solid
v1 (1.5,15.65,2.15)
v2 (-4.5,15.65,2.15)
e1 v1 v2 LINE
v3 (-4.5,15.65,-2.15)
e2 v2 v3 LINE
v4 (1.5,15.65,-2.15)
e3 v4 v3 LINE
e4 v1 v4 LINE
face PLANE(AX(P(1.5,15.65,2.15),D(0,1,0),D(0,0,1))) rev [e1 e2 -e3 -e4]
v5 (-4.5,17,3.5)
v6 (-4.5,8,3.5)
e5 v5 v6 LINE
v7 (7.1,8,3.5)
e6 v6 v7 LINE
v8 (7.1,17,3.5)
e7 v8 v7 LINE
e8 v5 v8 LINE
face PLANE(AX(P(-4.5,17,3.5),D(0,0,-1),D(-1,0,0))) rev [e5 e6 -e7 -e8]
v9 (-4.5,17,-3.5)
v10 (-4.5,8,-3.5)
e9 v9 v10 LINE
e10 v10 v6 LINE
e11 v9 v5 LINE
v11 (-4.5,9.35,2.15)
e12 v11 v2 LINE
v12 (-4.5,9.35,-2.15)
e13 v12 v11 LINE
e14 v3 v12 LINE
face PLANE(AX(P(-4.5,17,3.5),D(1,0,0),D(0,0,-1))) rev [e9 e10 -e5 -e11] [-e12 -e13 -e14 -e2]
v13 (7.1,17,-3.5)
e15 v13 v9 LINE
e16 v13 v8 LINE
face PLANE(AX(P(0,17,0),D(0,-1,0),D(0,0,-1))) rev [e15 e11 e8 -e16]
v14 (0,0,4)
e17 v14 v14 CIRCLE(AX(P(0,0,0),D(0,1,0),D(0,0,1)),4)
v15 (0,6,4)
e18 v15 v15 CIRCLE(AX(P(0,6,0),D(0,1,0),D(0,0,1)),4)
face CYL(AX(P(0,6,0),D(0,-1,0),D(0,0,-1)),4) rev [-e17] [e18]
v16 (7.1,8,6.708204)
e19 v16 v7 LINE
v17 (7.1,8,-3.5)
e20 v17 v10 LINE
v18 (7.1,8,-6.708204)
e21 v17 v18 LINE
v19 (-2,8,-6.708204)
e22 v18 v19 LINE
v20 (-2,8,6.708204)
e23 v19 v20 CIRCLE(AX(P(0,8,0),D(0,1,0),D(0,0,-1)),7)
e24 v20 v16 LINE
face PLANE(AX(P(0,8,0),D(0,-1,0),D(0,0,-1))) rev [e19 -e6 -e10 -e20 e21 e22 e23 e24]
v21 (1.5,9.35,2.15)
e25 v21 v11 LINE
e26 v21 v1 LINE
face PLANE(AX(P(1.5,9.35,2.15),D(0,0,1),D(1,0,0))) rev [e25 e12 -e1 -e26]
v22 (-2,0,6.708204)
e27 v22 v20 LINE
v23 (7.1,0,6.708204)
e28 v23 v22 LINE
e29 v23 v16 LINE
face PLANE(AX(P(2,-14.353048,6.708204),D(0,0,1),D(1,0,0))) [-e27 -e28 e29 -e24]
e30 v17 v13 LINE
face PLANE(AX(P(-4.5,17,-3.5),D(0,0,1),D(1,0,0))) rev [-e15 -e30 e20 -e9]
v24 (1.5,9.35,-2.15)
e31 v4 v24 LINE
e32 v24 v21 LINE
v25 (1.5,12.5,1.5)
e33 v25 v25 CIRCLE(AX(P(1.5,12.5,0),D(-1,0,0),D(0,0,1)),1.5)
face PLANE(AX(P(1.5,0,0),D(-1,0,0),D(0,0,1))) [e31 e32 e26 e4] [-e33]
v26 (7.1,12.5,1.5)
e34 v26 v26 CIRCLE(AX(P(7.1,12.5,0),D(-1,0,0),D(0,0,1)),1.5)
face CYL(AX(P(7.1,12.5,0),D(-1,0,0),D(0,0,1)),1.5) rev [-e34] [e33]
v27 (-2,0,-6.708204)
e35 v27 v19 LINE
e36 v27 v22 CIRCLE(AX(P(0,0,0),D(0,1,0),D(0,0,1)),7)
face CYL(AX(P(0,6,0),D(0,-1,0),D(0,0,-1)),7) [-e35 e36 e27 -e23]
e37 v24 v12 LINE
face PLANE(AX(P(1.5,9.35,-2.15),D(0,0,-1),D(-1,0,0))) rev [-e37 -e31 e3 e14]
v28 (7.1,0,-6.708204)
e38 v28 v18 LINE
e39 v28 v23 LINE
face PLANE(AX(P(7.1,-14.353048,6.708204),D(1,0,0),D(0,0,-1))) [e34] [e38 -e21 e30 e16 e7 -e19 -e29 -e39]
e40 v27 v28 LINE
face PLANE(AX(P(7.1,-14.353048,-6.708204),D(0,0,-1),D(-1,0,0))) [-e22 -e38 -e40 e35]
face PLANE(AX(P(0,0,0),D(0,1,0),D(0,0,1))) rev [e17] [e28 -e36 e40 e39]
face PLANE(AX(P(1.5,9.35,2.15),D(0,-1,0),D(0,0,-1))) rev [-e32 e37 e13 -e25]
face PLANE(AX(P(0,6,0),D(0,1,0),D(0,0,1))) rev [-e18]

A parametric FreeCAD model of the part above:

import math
import FreeCAD as App
import Part
import Sketcher

V = App.Vector

doc = App.newDocument("Part")
params = doc.addObject("Spreadsheet::Sheet", "Params")
for row, (alias, value) in enumerate([
    ("sketch1_diameter", "14 mm"),
    ("sketch1_diameter2", "8 mm"),
    ("pad1_length", "6 mm"),
    ("sketch2_diameter", "14 mm"),
    ("pad2_length", "10 mm"),
    ("sketch3_radius", "7 mm"),
    ("pocket1_length", "8 mm"),
    ("sketch4_width", "6.3 mm"),
    ("sketch4_height", "4.3 mm"),
    ("pocket2_length", "6 mm"),
    ("sketch5_radius", "7 mm"),
    ("sketch5_height", "8 mm"),
    ("pocket3_length", "8 mm"),
    ("sketch6_radius", "7 mm"),
    ("sketch6_width", "4 mm"),
    ("sketch6_height", "5 mm"),
    ("pad3_length", "8 mm"),
    ("sketch7_diameter", "14 mm"),
    ("pocket4_length", "8 mm"),
    ("sketch8_width", "9 mm"),
    ("sketch8_height", "7 mm"),
    ("pad4_length", "9 mm"),
    ("sketch9_width", "6.3 mm"),
    ("sketch9_height", "4.3 mm"),
    ("pocket5_length", "6 mm"),
    ("sketch10_radius", "7 mm"),
    ("sketch10_width", "5.1 mm"),
    ("pad5_length", "8 mm"),
    ("sketch11_width", "9 mm"),
    ("sketch11_height", "7 mm"),
    ("pad6_length", "2.6 mm"),
    ("sketch12_width", "4 mm"),
    ("sketch12_height", "5 mm"),
    ("sketch13_diameter", "3 mm"),
], start=1):
    params.set(f"A{row}", alias)
    params.set(f"B{row}", "=" + value)
    params.setAlias(f"B{row}", alias)

body = doc.addObject("PartDesign::Body", "Body")

sketch1 = doc.addObject("Sketcher::SketchObject", "Sketch")
body.addObject(sketch1)
sketch1.AttachmentSupport = (doc.XZ_Plane, [""])
sketch1.MapMode = "FlatFace"
sketch1.addGeometry(Part.Circle(V(0, 0, 0), V(0, 0, 1), 7), False)
sketch1.addGeometry(Part.Circle(V(0, 0, 0), V(0, 0, 1), 4), False)
sketch1.addConstraint(Sketcher.Constraint("Coincident", 0, 3, -1, 1))
sketch1.addConstraint(Sketcher.Constraint("Coincident", 1, 3, -1, 1))
sketch1.addConstraint(Sketcher.Constraint("Diameter", 0, 14.0))
sketch1.addConstraint(Sketcher.Constraint("Diameter", 1, 8.0))
sketch1.setExpression("Constraints[2]", "Params.sketch1_diameter")
sketch1.setExpression("Constraints[3]", "Params.sketch1_diameter2")
pad1 = doc.addObject("PartDesign::Pad", "Pad")
body.addObject(pad1)
pad1.Profile = sketch1
pad1.setExpression("Length", "Params.pad1_length")
pad1.Reversed = True

sketch2 = doc.addObject("Sketcher::SketchObject", "Sketch001")
body.addObject(sketch2)
sketch2.AttachmentSupport = (doc.XZ_Plane, [""])
sketch2.MapMode = "FlatFace"
sketch2.AttachmentOffset = App.Placement(V(0, 0, -6), App.Rotation())
sketch2.addGeometry(Part.Circle(V(0, 0, 0), V(0, 0, 1), 7), False)
sketch2.addConstraint(Sketcher.Constraint("Coincident", 0, 3, -1, 1))
sketch2.addConstraint(Sketcher.Constraint("Diameter", 0, 14.0))
sketch2.setExpression("Constraints[1]", "Params.sketch2_diameter")
pad2 = doc.addObject("PartDesign::Pad", "Pad001")
body.addObject(pad2)
pad2.Profile = sketch2
pad2.setExpression("Length", "Params.pad2_length")
pad2.Reversed = True

sketch3 = doc.addObject("Sketcher::SketchObject", "Sketch002")
body.addObject(sketch3)
sketch3.AttachmentSupport = (doc.XZ_Plane, [""])
sketch3.MapMode = "FlatFace"
sketch3.AttachmentOffset = App.Placement(V(0, 0, -16), App.Rotation())
sketch3.addGeometry(Part.LineSegment(V(0, 7, 0), V(0, -7, 0)), False)
sketch3.addGeometry(Part.ArcOfCircle(Part.Circle(V(0, 0, 0), V(0, 0, 1), 7), math.radians(90), math.radians(270)), False)
sketch3.addConstraint(Sketcher.Constraint("Coincident", 0, 1, 1, 1))
sketch3.addConstraint(Sketcher.Constraint("Coincident", 1, 2, 0, 2))
sketch3.addConstraint(Sketcher.Constraint("Vertical", 0))
sketch3.addConstraint(Sketcher.Constraint("Coincident", 1, 3, -1, 1))
sketch3.addConstraint(Sketcher.Constraint("PointOnObject", 0, 1, -2))
sketch3.addConstraint(Sketcher.Constraint("Radius", 1, 7.0))
sketch3.setExpression("Constraints[5]", "Params.sketch3_radius")
pocket1 = doc.addObject("PartDesign::Pocket", "Pocket")
body.addObject(pocket1)
pocket1.Profile = sketch3
pocket1.setExpression("Length", "Params.pocket1_length")
pocket1.Reversed = True

sketch4 = doc.addObject("Sketcher::SketchObject", "Sketch003")
body.addObject(sketch4)
sketch4.AttachmentSupport = (doc.YZ_Plane, [""])
sketch4.MapMode = "FlatFace"
sketch4.addGeometry(Part.LineSegment(V(15.3, -2.1, 0), V(9, -2.1, 0)), False)
sketch4.addGeometry(Part.LineSegment(V(9, -2.1, 0), V(9, 2.1, 0)), False)
sketch4.addGeometry(Part.LineSegment(V(9, 2.1, 0), V(15.3, 2.1, 0)), False)
sketch4.addGeometry(Part.LineSegment(V(15.3, 2.1, 0), V(15.3, -2.1, 0)), False)
sketch4.addConstraint(Sketcher.Constraint("Coincident", 0, 2, 1, 1))
sketch4.addConstraint(Sketcher.Constraint("Coincident", 1, 2, 2, 1))
sketch4.addConstraint(Sketcher.Constraint("Coincident", 2, 2, 3, 1))
sketch4.addConstraint(Sketcher.Constraint("Coincident", 3, 2, 0, 1))
sketch4.addConstraint(Sketcher.Constraint("Horizontal", 0))
sketch4.addConstraint(Sketcher.Constraint("Vertical", 1))
sketch4.addConstraint(Sketcher.Constraint("Horizontal", 2))
sketch4.addConstraint(Sketcher.Constraint("Vertical", 3))
sketch4.addConstraint(Sketcher.Constraint("DistanceX", 0, 2, 0, 1, 6.3))
sketch4.addConstraint(Sketcher.Constraint("DistanceY", 1, 1, 1, 2, 4.3))
sketch4.addConstraint(Sketcher.Constraint("DistanceX", -1, 1, 0, 2, 9.0))
sketch4.addConstraint(Sketcher.Constraint("DistanceY", 0, 2, -1, 1, 2.15))
sketch4.setExpression("Constraints[8]", "Params.sketch4_width")
sketch4.setExpression("Constraints[9]", "Params.sketch4_height")
pocket2 = doc.addObject("PartDesign::Pocket", "Pocket001")
body.addObject(pocket2)
pocket2.Profile = sketch4
pocket2.setExpression("Length", "Params.pocket2_length")
pocket2.Reversed = True

sketch5 = doc.addObject("Sketcher::SketchObject", "Sketch004")
body.addObject(sketch5)
sketch5.AttachmentSupport = (doc.XZ_Plane, [""])
sketch5.MapMode = "FlatFace"
sketch5.AttachmentOffset = App.Placement(V(0, 0, -16), App.Rotation())
sketch5.addGeometry(Part.LineSegment(V(-11, -11, 0), V(-11, 11, 0)), False)
sketch5.addGeometry(Part.LineSegment(V(-11, 11, 0), V(11, 11, 0)), False)
sketch5.addGeometry(Part.LineSegment(V(11, 11, 0), V(11, -11, 0)), False)
sketch5.addGeometry(Part.LineSegment(V(11, -11, 0), V(-11, -11, 0)), False)
sketch5.addGeometry(Part.LineSegment(V(0, 4, 0), V(0, -4, 0)), False)
sketch5.addGeometry(Part.LineSegment(V(0, -4, 0), V(6, -4, 0)), False)
sketch5.addGeometry(Part.ArcOfCircle(Part.Circle(V(0, 0, 0), V(0, 0, 1), 7), math.radians(-35), math.radians(35)), False)
sketch5.addGeometry(Part.LineSegment(V(6, 4, 0), V(0, 4, 0)), False)
sketch5.addConstraint(Sketcher.Constraint("Coincident", 0, 2, 1, 1))
sketch5.addConstraint(Sketcher.Constraint("Coincident", 1, 2, 2, 1))
sketch5.addConstraint(Sketcher.Constraint("Coincident", 2, 2, 3, 1))
sketch5.addConstraint(Sketcher.Constraint("Coincident", 3, 2, 0, 1))
sketch5.addConstraint(Sketcher.Constraint("Coincident", 4, 2, 5, 1))
sketch5.addConstraint(Sketcher.Constraint("Coincident", 5, 2, 6, 1))
sketch5.addConstraint(Sketcher.Constraint("Coincident", 6, 2, 7, 1))
sketch5.addConstraint(Sketcher.Constraint("Coincident", 7, 2, 4, 1))
sketch5.addConstraint(Sketcher.Constraint("Vertical", 0))
sketch5.addConstraint(Sketcher.Constraint("Horizontal", 1))
sketch5.addConstraint(Sketcher.Constraint("Vertical", 2))
sketch5.addConstraint(Sketcher.Constraint("Horizontal", 3))
sketch5.addConstraint(Sketcher.Constraint("Vertical", 4))
sketch5.addConstraint(Sketcher.Constraint("Horizontal", 5))
sketch5.addConstraint(Sketcher.Constraint("Horizontal", 7))
sketch5.addConstraint(Sketcher.Constraint("Coincident", 6, 3, -1, 1))
sketch5.addConstraint(Sketcher.Constraint("Symmetric", 0, 2, 2, 2, -1, 1))
sketch5.addConstraint(Sketcher.Constraint("Symmetric", 4, 2, 7, 2, -1, 1))
sketch5.addConstraint(Sketcher.Constraint("Equal", 3, 0))
sketch5.addConstraint(Sketcher.Constraint("Radius", 6, 7.0))
sketch5.addConstraint(Sketcher.Constraint("DistanceY", 4, 2, 4, 1, 8.0))
sketch5.addConstraint(Sketcher.Constraint("DistanceX", 1, 1, 1, 2, 21.092))
sketch5.setExpression("Constraints[19]", "Params.sketch5_radius")
sketch5.setExpression("Constraints[20]", "Params.sketch5_height")
pocket3 = doc.addObject("PartDesign::Pocket", "Pocket002")
body.addObject(pocket3)
pocket3.Profile = sketch5
pocket3.setExpression("Length", "Params.pocket3_length")
pocket3.Reversed = True

sketch6 = doc.addObject("Sketcher::SketchObject", "Sketch005")
body.addObject(sketch6)
sketch6.AttachmentSupport = (doc.XZ_Plane, [""])
sketch6.MapMode = "FlatFace"
sketch6.AttachmentOffset = App.Placement(V(0, 0, -8), App.Rotation())
sketch6.addGeometry(Part.LineSegment(V(2, -6.7, 0), V(2, -11.7, 0)), False)
sketch6.addGeometry(Part.LineSegment(V(2, -11.7, 0), V(-2, -11.7, 0)), False)
sketch6.addGeometry(Part.LineSegment(V(-2, -11.7, 0), V(-2, -6.7, 0)), False)
sketch6.addGeometry(Part.ArcOfCircle(Part.Circle(V(0, 0, 0), V(0, 0, 1), 7), math.radians(-107), math.radians(-73)), False)
sketch6.addGeometry(Part.LineSegment(V(2, 11.7, 0), V(2, 6.7, 0)), False)
sketch6.addGeometry(Part.ArcOfCircle(Part.Circle(V(0, 0, 0), V(0, 0, 1), 7), math.radians(73), math.radians(107)), False)
sketch6.addGeometry(Part.LineSegment(V(-2, 6.7, 0), V(-2, 11.7, 0)), False)
sketch6.addGeometry(Part.LineSegment(V(-2, 11.7, 0), V(2, 11.7, 0)), False)
sketch6.addConstraint(Sketcher.Constraint("Coincident", 0, 2, 1, 1))
sketch6.addConstraint(Sketcher.Constraint("Coincident", 1, 2, 2, 1))
sketch6.addConstraint(Sketcher.Constraint("Coincident", 2, 2, 3, 1))
sketch6.addConstraint(Sketcher.Constraint("Coincident", 3, 2, 0, 1))
sketch6.addConstraint(Sketcher.Constraint("Coincident", 4, 2, 5, 1))
sketch6.addConstraint(Sketcher.Constraint("Coincident", 5, 2, 6, 1))
sketch6.addConstraint(Sketcher.Constraint("Coincident", 6, 2, 7, 1))
sketch6.addConstraint(Sketcher.Constraint("Coincident", 7, 2, 4, 1))
sketch6.addConstraint(Sketcher.Constraint("Vertical", 0))
sketch6.addConstraint(Sketcher.Constraint("Horizontal", 1))
sketch6.addConstraint(Sketcher.Constraint("Vertical", 2))
sketch6.addConstraint(Sketcher.Constraint("Vertical", 4))
sketch6.addConstraint(Sketcher.Constraint("Vertical", 6))
sketch6.addConstraint(Sketcher.Constraint("Horizontal", 7))
sketch6.addConstraint(Sketcher.Constraint("Coincident", 3, 3, -1, 1))
sketch6.addConstraint(Sketcher.Constraint("Coincident", 5, 3, -1, 1))
sketch6.addConstraint(Sketcher.Constraint("Equal", 3, 5))
sketch6.addConstraint(Sketcher.Constraint("Symmetric", 0, 2, 6, 2, -1, 1))
sketch6.addConstraint(Sketcher.Constraint("Horizontal", 2, 2, 3, 2))
sketch6.addConstraint(Sketcher.Constraint("Horizontal", 4, 2, 5, 2))
sketch6.addConstraint(Sketcher.Constraint("Radius", 3, 7.0))
sketch6.addConstraint(Sketcher.Constraint("DistanceX", 1, 2, 1, 1, 4.0))
sketch6.addConstraint(Sketcher.Constraint("DistanceY", 0, 2, 0, 1, 5.0))
sketch6.setExpression("Constraints[20]", "Params.sketch6_radius")
sketch6.setExpression("Constraints[21]", "Params.sketch6_width")
sketch6.setExpression("Constraints[22]", "Params.sketch6_height")
pad3 = doc.addObject("PartDesign::Pad", "Pad002")
body.addObject(pad3)
pad3.Profile = sketch6
pad3.setExpression("Length", "Params.pad3_length")

sketch7 = doc.addObject("Sketcher::SketchObject", "Sketch006")
body.addObject(sketch7)
sketch7.AttachmentSupport = (doc.XZ_Plane, [""])
sketch7.MapMode = "FlatFace"
sketch7.AttachmentOffset = App.Placement(V(0, 0, -16), App.Rotation())
sketch7.addGeometry(Part.Circle(V(0, 0, 0), V(0, 0, 1), 7), False)
sketch7.addConstraint(Sketcher.Constraint("Coincident", 0, 3, -1, 1))
sketch7.addConstraint(Sketcher.Constraint("Diameter", 0, 14.0))
sketch7.setExpression("Constraints[1]", "Params.sketch7_diameter")
pocket4 = doc.addObject("PartDesign::Pocket", "Pocket003")
body.addObject(pocket4)
pocket4.Profile = sketch7
pocket4.setExpression("Length", "Params.pocket4_length")
pocket4.Reversed = True

sketch8 = doc.addObject("Sketcher::SketchObject", "Sketch007")
body.addObject(sketch8)
sketch8.AttachmentSupport = (doc.XZ_Plane, [""])
sketch8.MapMode = "FlatFace"
sketch8.AttachmentOffset = App.Placement(V(0, 0, -8), App.Rotation())
sketch8.addGeometry(Part.LineSegment(V(-4, -4, 0), V(-4, 4, 0)), False)
sketch8.addGeometry(Part.LineSegment(V(-4, 4, 0), V(4, 4, 0)), False)
sketch8.addGeometry(Part.LineSegment(V(4, 4, 0), V(4, -4, 0)), False)
sketch8.addGeometry(Part.LineSegment(V(4, -4, 0), V(-4, -4, 0)), False)
sketch8.addConstraint(Sketcher.Constraint("Coincident", 0, 2, 1, 1))
sketch8.addConstraint(Sketcher.Constraint("Coincident", 1, 2, 2, 1))
sketch8.addConstraint(Sketcher.Constraint("Coincident", 2, 2, 3, 1))
sketch8.addConstraint(Sketcher.Constraint("Coincident", 3, 2, 0, 1))
sketch8.addConstraint(Sketcher.Constraint("Vertical", 0))
sketch8.addConstraint(Sketcher.Constraint("Horizontal", 1))
sketch8.addConstraint(Sketcher.Constraint("Vertical", 2))
sketch8.addConstraint(Sketcher.Constraint("Horizontal", 3))
sketch8.addConstraint(Sketcher.Constraint("Symmetric", 0, 2, 2, 2, -1, 1))
sketch8.addConstraint(Sketcher.Constraint("DistanceX", 1, 1, 1, 2, 9.0))
sketch8.addConstraint(Sketcher.Constraint("DistanceY", 0, 1, 0, 2, 7.0))
sketch8.setExpression("Constraints[9]", "Params.sketch8_width")
sketch8.setExpression("Constraints[10]", "Params.sketch8_height")
pad4 = doc.addObject("PartDesign::Pad", "Pad003")
body.addObject(pad4)
pad4.Profile = sketch8
pad4.setExpression("Length", "Params.pad4_length")
pad4.Reversed = True

sketch9 = doc.addObject("Sketcher::SketchObject", "Sketch008")
body.addObject(sketch9)
sketch9.AttachmentSupport = (doc.YZ_Plane, [""])
sketch9.MapMode = "FlatFace"
sketch9.AttachmentOffset = App.Placement(V(0, 0, -4.5), App.Rotation())
sketch9.addGeometry(Part.LineSegment(V(15.7, -2.1, 0), V(9.3, -2.1, 0)), False)
sketch9.addGeometry(Part.LineSegment(V(9.3, -2.1, 0), V(9.3, 2.1, 0)), False)
sketch9.addGeometry(Part.LineSegment(V(9.3, 2.1, 0), V(15.7, 2.1, 0)), False)
sketch9.addGeometry(Part.LineSegment(V(15.7, 2.1, 0), V(15.7, -2.1, 0)), False)
sketch9.addConstraint(Sketcher.Constraint("Coincident", 0, 2, 1, 1))
sketch9.addConstraint(Sketcher.Constraint("Coincident", 1, 2, 2, 1))
sketch9.addConstraint(Sketcher.Constraint("Coincident", 2, 2, 3, 1))
sketch9.addConstraint(Sketcher.Constraint("Coincident", 3, 2, 0, 1))
sketch9.addConstraint(Sketcher.Constraint("Horizontal", 0))
sketch9.addConstraint(Sketcher.Constraint("Vertical", 1))
sketch9.addConstraint(Sketcher.Constraint("Horizontal", 2))
sketch9.addConstraint(Sketcher.Constraint("Vertical", 3))
sketch9.addConstraint(Sketcher.Constraint("DistanceX", 0, 2, 0, 1, 6.3))
sketch9.addConstraint(Sketcher.Constraint("DistanceY", 1, 1, 1, 2, 4.3))
sketch9.addConstraint(Sketcher.Constraint("DistanceX", -1, 1, 0, 2, 9.35))
sketch9.addConstraint(Sketcher.Constraint("DistanceY", 0, 2, -1, 1, 2.15))
sketch9.setExpression("Constraints[8]", "Params.sketch9_width")
sketch9.setExpression("Constraints[9]", "Params.sketch9_height")
pocket5 = doc.addObject("PartDesign::Pocket", "Pocket004")
body.addObject(pocket5)
pocket5.Profile = sketch9
pocket5.setExpression("Length", "Params.pocket5_length")
pocket5.Reversed = True

sketch10 = doc.addObject("Sketcher::SketchObject", "Sketch009")
body.addObject(sketch10)
sketch10.AttachmentSupport = (doc.XZ_Plane, [""])
sketch10.MapMode = "FlatFace"
sketch10.AttachmentOffset = App.Placement(V(0, 0, -8), App.Rotation())
sketch10.addGeometry(Part.LineSegment(V(2, 7, 0), V(7, 7, 0)), False)
sketch10.addGeometry(Part.LineSegment(V(7, 7, 0), V(7, -7, 0)), False)
sketch10.addGeometry(Part.LineSegment(V(7, -7, 0), V(2, -7, 0)), False)
sketch10.addGeometry(Part.ArcOfCircle(Part.Circle(V(0, 0, 0), V(0, 0, 1), 7), math.radians(-73), math.radians(73)), False)
sketch10.addConstraint(Sketcher.Constraint("Coincident", 0, 2, 1, 1))
sketch10.addConstraint(Sketcher.Constraint("Coincident", 1, 2, 2, 1))
sketch10.addConstraint(Sketcher.Constraint("Coincident", 2, 2, 3, 1))
sketch10.addConstraint(Sketcher.Constraint("Coincident", 3, 2, 0, 1))
sketch10.addConstraint(Sketcher.Constraint("Horizontal", 0))
sketch10.addConstraint(Sketcher.Constraint("Vertical", 1))
sketch10.addConstraint(Sketcher.Constraint("Horizontal", 2))
sketch10.addConstraint(Sketcher.Constraint("Coincident", 3, 3, -1, 1))
sketch10.addConstraint(Sketcher.Constraint("Vertical", 2, 2, 3, 2))
sketch10.addConstraint(Sketcher.Constraint("Radius", 3, 7.0))
sketch10.addConstraint(Sketcher.Constraint("DistanceX", 0, 1, 0, 2, 5.1))
sketch10.addConstraint(Sketcher.Constraint("DistanceX", -1, 1, 2, 2, 2.0))
sketch10.setExpression("Constraints[9]", "Params.sketch10_radius")
sketch10.setExpression("Constraints[10]", "Params.sketch10_width")
pad5 = doc.addObject("PartDesign::Pad", "Pad004")
body.addObject(pad5)
pad5.Profile = sketch10
pad5.setExpression("Length", "Params.pad5_length")

sketch11 = doc.addObject("Sketcher::SketchObject", "Sketch010")
body.addObject(sketch11)
sketch11.AttachmentSupport = (doc.YZ_Plane, [""])
sketch11.MapMode = "FlatFace"
sketch11.AttachmentOffset = App.Placement(V(0, 0, 4.5), App.Rotation())
sketch11.addGeometry(Part.LineSegment(V(17, 4, 0), V(8, 4, 0)), False)
sketch11.addGeometry(Part.LineSegment(V(8, 4, 0), V(8, -4, 0)), False)
sketch11.addGeometry(Part.LineSegment(V(8, -4, 0), V(17, -4, 0)), False)
sketch11.addGeometry(Part.LineSegment(V(17, -4, 0), V(17, 4, 0)), False)
sketch11.addConstraint(Sketcher.Constraint("Coincident", 0, 2, 1, 1))
sketch11.addConstraint(Sketcher.Constraint("Coincident", 1, 2, 2, 1))
sketch11.addConstraint(Sketcher.Constraint("Coincident", 2, 2, 3, 1))
sketch11.addConstraint(Sketcher.Constraint("Coincident", 3, 2, 0, 1))
sketch11.addConstraint(Sketcher.Constraint("Horizontal", 0))
sketch11.addConstraint(Sketcher.Constraint("Vertical", 1))
sketch11.addConstraint(Sketcher.Constraint("Horizontal", 2))
sketch11.addConstraint(Sketcher.Constraint("Vertical", 3))
sketch11.addConstraint(Sketcher.Constraint("DistanceX", 0, 2, 0, 1, 9.0))
sketch11.addConstraint(Sketcher.Constraint("DistanceY", 1, 2, 1, 1, 7.0))
sketch11.addConstraint(Sketcher.Constraint("DistanceX", -1, 1, 0, 2, 8.0))
sketch11.addConstraint(Sketcher.Constraint("DistanceY", -1, 1, 0, 2, 3.5))
sketch11.setExpression("Constraints[8]", "Params.sketch11_width")
sketch11.setExpression("Constraints[9]", "Params.sketch11_height")
pad6 = doc.addObject("PartDesign::Pad", "Pad005")
body.addObject(pad6)
pad6.Profile = sketch11
pad6.setExpression("Length", "Params.pad6_length")

sketch12 = doc.addObject("Sketcher::SketchObject", "Sketch011")
body.addObject(sketch12)
sketch12.AttachmentSupport = (doc.XZ_Plane, [""])
sketch12.MapMode = "FlatFace"
sketch12.AttachmentOffset = App.Placement(V(0, 0, -8), App.Rotation())
sketch12.addGeometry(Part.LineSegment(V(-2, -11.7, 0), V(-2, -6.7, 0)), False)
sketch12.addGeometry(Part.LineSegment(V(-2, -6.7, 0), V(2, -6.7, 0)), False)
sketch12.addGeometry(Part.LineSegment(V(2, -6.7, 0), V(2, -11.7, 0)), False)
sketch12.addGeometry(Part.LineSegment(V(2, -11.7, 0), V(-2, -11.7, 0)), False)
sketch12.addGeometry(Part.LineSegment(V(-2, 6.7, 0), V(-2, 11.7, 0)), False)
sketch12.addGeometry(Part.LineSegment(V(-2, 11.7, 0), V(2, 11.7, 0)), False)
sketch12.addGeometry(Part.LineSegment(V(2, 11.7, 0), V(2, 6.7, 0)), False)
sketch12.addGeometry(Part.LineSegment(V(2, 6.7, 0), V(-2, 6.7, 0)), False)
sketch12.addConstraint(Sketcher.Constraint("Coincident", 0, 2, 1, 1))
sketch12.addConstraint(Sketcher.Constraint("Coincident", 1, 2, 2, 1))
sketch12.addConstraint(Sketcher.Constraint("Coincident", 2, 2, 3, 1))
sketch12.addConstraint(Sketcher.Constraint("Coincident", 3, 2, 0, 1))
sketch12.addConstraint(Sketcher.Constraint("Coincident", 4, 2, 5, 1))
sketch12.addConstraint(Sketcher.Constraint("Coincident", 5, 2, 6, 1))
sketch12.addConstraint(Sketcher.Constraint("Coincident", 6, 2, 7, 1))
sketch12.addConstraint(Sketcher.Constraint("Coincident", 7, 2, 4, 1))
sketch12.addConstraint(Sketcher.Constraint("Vertical", 0))
sketch12.addConstraint(Sketcher.Constraint("Horizontal", 1))
sketch12.addConstraint(Sketcher.Constraint("Vertical", 2))
sketch12.addConstraint(Sketcher.Constraint("Horizontal", 3))
sketch12.addConstraint(Sketcher.Constraint("Vertical", 4))
sketch12.addConstraint(Sketcher.Constraint("Horizontal", 5))
sketch12.addConstraint(Sketcher.Constraint("Vertical", 6))
sketch12.addConstraint(Sketcher.Constraint("Horizontal", 7))
sketch12.addConstraint(Sketcher.Constraint("Symmetric", 2, 2, 4, 2, -1, 1))
sketch12.addConstraint(Sketcher.Constraint("Symmetric", 0, 2, 6, 2, -1, 1))
sketch12.addConstraint(Sketcher.Constraint("Vertical", 3, 2, 4, 2))
sketch12.addConstraint(Sketcher.Constraint("DistanceX", 1, 1, 1, 2, 4.0))
sketch12.addConstraint(Sketcher.Constraint("DistanceY", 0, 1, 0, 2, 5.0))
sketch12.addConstraint(Sketcher.Constraint("DistanceY", 0, 2, -1, 1, 6.708204))
sketch12.setExpression("Constraints[19]", "Params.sketch12_width")
sketch12.setExpression("Constraints[20]", "Params.sketch12_height")
pocket6 = doc.addObject("PartDesign::Pocket", "Pocket005")
body.addObject(pocket6)
pocket6.Profile = sketch12
pocket6.Type = "ThroughAll"
pocket6.Reversed = True

sketch13 = doc.addObject("Sketcher::SketchObject", "Sketch012")
body.addObject(sketch13)
sketch13.AttachmentSupport = (doc.YZ_Plane, [""])
sketch13.MapMode = "FlatFace"
sketch13.AttachmentOffset = App.Placement(V(0, 0, 1.5), App.Rotation())
sketch13.addGeometry(Part.Circle(V(12.5, 0, 0), V(0, 0, 1), 1.5), False)
sketch13.addConstraint(Sketcher.Constraint("PointOnObject", 0, 3, -1))
sketch13.addConstraint(Sketcher.Constraint("Diameter", 0, 3.0))
sketch13.addConstraint(Sketcher.Constraint("DistanceX", -1, 1, 0, 3, 12.5))
sketch13.setExpression("Constraints[1]", "Params.sketch13_diameter")
pocket7 = doc.addObject("PartDesign::Pocket", "Pocket006")
body.addObject(pocket7)
pocket7.Profile = sketch13
pocket7.Type = "ThroughAll"
pocket7.Reversed = True

doc.recompute()
